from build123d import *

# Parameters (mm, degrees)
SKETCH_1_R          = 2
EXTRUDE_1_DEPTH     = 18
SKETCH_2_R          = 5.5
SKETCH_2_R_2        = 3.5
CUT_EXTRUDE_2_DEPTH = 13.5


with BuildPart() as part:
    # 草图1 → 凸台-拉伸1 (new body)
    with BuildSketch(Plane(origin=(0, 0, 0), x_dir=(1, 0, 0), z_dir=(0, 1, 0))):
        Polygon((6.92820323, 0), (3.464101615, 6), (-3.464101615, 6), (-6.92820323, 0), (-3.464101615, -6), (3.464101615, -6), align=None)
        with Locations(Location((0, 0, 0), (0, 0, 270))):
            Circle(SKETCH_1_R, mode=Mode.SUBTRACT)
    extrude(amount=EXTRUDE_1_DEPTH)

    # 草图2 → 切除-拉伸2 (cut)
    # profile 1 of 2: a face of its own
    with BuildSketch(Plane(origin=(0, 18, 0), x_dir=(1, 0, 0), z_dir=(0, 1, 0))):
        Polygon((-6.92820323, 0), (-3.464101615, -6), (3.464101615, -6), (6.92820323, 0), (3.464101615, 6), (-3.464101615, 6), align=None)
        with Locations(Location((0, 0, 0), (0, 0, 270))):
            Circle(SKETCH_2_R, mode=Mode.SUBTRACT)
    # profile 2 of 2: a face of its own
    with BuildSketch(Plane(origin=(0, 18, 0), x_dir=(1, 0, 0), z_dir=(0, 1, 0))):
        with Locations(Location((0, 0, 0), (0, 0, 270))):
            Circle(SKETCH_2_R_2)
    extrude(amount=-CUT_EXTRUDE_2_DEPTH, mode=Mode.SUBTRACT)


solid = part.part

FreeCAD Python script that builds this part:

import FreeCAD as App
import Part
import Sketcher

V = App.Vector
Q = App.Units.Quantity


def add_polygon(sketch, points):
    """Adds a closed chain of lines whose ends are joined by coincident constraints."""
    first, n = sketch.GeometryCount, len(points)
    for a, b in zip(points, points[1:] + points[:1]):
        sketch.addGeometry(Part.LineSegment(App.Vector(*a, 0), App.Vector(*b, 0)), False)
    for i in range(n):
        sketch.addConstraint(Sketcher.Constraint("Coincident", first + i, 2, first + (i + 1) % n, 1))

doc = App.newDocument("Part")
params = doc.addObject("Spreadsheet::Sheet", "Params")
for row, (alias, value) in enumerate([
    ("sketch1_diameter", "4 mm"),
    ("pad1_length", "18 mm"),
    ("sketch2_diameter", "11 mm"),
    ("sketch2_diameter2", "7 mm"),
    ("pocket1_length", "13.5 mm"),
], start=1):
    params.set(f"A{row}", alias)
    params.set(f"B{row}", "=" + value)
    params.setAlias(f"B{row}", alias)

body = doc.addObject("PartDesign::Body", "Body")

# Sketch on XZ plane
sketch1 = doc.addObject("Sketcher::SketchObject", "Sketch")
body.addObject(sketch1)
sketch1.AttachmentSupport = (doc.XZ_Plane, [""])
sketch1.MapMode = "FlatFace"
add_polygon(sketch1, [(6.9, 0), (3.5, -6), (-3.5, -6), (-6.9, 0), (-3.5, 6), (3.5, 6)])  # lines 0-5
sketch1.addGeometry(Part.Circle(V(0, 0, 0), V(0, 0, 1), 2), False)  # 6
sketch1.addConstraint([
    Sketcher.Constraint("Horizontal", 1),
    Sketcher.Constraint("Horizontal", 4),
    Sketcher.Constraint("Coincident", 6, 3, -1, 1),
    Sketcher.Constraint("Symmetric", 0, 2, 3, 2, -1, 1),
    Sketcher.Constraint("Symmetric", 2, 2, 5, 2, -1, 1),
    Sketcher.Constraint("PointOnObject", 2, 2, -1),
    Sketcher.Constraint("Parallel", 2, 5),
    Sketcher.Constraint("Vertical", 1, 2, 3, 2),
    Sketcher.Constraint("Diameter", 6, Q("4 mm")),
    Sketcher.Constraint("Angle", 0, Q("-120 deg")),
    Sketcher.Constraint("DistanceY", 0, 2, -1, 1, Q("6 mm")),
    Sketcher.Constraint("DistanceX", -1, 1, 0, 2, Q("3.464102 mm")),
])
sketch1.setExpression("Constraints[14]", "Params.sketch1_diameter")
pad1 = doc.addObject("PartDesign::Pad", "Pad")
body.addObject(pad1)
pad1.Profile = sketch1
pad1.setExpression("Length", "Params.pad1_length")
pad1.Reversed = True

# Sketch on XZ plane
sketch2 = doc.addObject("Sketcher::SketchObject", "Sketch001")
body.addObject(sketch2)
sketch2.AttachmentSupport = (doc.XZ_Plane, [""])
sketch2.MapMode = "FlatFace"
sketch2.AttachmentOffset = App.Placement(V(0, 0, -18), App.Rotation())
add_polygon(sketch2, [(-6.9, 0), (-3.5, 6), (3.5, 6), (6.9, 0), (3.5, -6), (-3.5, -6)])  # lines 0-5
sketch2.addGeometry(Part.Circle(V(0, 0, 0), V(0, 0, 1), 5.5), False)  # 6
sketch2.addGeometry(Part.Circle(V(0, 0, 0), V(0, 0, 1), 3.5), False)  # 7
sketch2.addConstraint([
    Sketcher.Constraint("Horizontal", 1),
    Sketcher.Constraint("Horizontal", 4),
    Sketcher.Constraint("Coincident", 6, 3, -1, 1),
    Sketcher.Constraint("Coincident", 7, 3, -1, 1),
    Sketcher.Constraint("Symmetric", 0, 2, 3, 2, -1, 1),
    Sketcher.Constraint("Symmetric", 2, 2, 5, 2, -1, 1),
    Sketcher.Constraint("PointOnObject", 2, 2, -1),
    Sketcher.Constraint("Parallel", 2, 5),
    Sketcher.Constraint("Vertical", 1, 2, 3, 2),
    Sketcher.Constraint("Diameter", 6, Q("11 mm")),
    Sketcher.Constraint("Diameter", 7, Q("7 mm")),
    Sketcher.Constraint("Angle", 0, Q("60 deg")),
    Sketcher.Constraint("DistanceY", -1, 1, 0, 2, Q("6 mm")),
    Sketcher.Constraint("DistanceX", 0, 2, -1, 1, Q("3.464102 mm")),
])
sketch2.setExpression("Constraints[15]", "Params.sketch2_diameter")
sketch2.setExpression("Constraints[16]", "Params.sketch2_diameter2")
pocket1 = doc.addObject("PartDesign::Pocket", "Pocket")
body.addObject(pocket1)
pocket1.Profile = sketch2
pocket1.setExpression("Length", "Params.pocket1_length")
pocket1.Reversed = True

doc.recompute()
